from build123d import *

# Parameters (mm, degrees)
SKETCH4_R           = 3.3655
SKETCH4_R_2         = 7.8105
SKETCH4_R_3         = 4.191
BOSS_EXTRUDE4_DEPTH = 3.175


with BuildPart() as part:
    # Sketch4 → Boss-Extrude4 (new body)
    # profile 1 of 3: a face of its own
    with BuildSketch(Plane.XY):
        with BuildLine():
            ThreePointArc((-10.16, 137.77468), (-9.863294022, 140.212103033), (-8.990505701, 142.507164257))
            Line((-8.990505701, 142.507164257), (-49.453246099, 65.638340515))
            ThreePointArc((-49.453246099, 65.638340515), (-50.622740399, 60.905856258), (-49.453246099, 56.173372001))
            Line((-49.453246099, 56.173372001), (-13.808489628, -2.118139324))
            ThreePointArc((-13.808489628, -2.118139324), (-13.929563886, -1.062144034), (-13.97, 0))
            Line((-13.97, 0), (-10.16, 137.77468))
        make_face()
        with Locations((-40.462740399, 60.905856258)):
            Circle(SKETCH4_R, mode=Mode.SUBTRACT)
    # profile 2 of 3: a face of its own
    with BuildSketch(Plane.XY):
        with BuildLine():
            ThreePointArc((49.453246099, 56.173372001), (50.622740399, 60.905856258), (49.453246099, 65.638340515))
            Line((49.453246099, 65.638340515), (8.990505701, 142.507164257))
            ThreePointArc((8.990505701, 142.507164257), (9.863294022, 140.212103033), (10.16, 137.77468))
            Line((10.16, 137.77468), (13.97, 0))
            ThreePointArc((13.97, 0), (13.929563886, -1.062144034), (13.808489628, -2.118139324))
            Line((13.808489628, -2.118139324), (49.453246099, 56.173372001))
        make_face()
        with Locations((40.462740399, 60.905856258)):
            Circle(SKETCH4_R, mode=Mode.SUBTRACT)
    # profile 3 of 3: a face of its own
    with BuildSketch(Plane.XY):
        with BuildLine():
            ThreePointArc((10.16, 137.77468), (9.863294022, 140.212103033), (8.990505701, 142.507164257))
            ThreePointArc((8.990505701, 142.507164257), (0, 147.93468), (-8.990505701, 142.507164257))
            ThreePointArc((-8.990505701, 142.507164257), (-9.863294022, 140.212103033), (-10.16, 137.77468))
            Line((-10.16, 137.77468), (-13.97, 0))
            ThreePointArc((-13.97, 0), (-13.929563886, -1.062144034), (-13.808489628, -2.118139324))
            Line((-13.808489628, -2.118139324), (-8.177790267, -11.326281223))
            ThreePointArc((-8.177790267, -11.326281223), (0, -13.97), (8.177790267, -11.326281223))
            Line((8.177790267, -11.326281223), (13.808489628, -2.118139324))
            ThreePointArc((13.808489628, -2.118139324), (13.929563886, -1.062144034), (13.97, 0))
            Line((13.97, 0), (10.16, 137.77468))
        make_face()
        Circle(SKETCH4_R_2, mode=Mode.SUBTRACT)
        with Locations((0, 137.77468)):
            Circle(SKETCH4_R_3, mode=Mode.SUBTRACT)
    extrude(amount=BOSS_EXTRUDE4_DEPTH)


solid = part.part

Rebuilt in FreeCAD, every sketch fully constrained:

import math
import FreeCAD as App
import Part
import Sketcher

V = App.Vector
Q = App.Units.Quantity

doc = App.newDocument("Part")
params = doc.addObject("Spreadsheet::Sheet", "Params")
for row, (alias, value) in enumerate([
    ("sketch1_radius", "0.4 in"),
    ("sketch1_diameter", "0.33 in"),
    ("sketch1_radius2", "0.55 in"),
    ("sketch1_diameter2", "0.265 in"),
    ("sketch1_diameter3", "0.615 in"),
    ("pad1_length", "0.125 in"),
], start=1):
    params.set(f"A{row}", alias)
    params.set(f"B{row}", "=" + value)
    params.setAlias(f"B{row}", alias)

body = doc.addObject("PartDesign::Body", "Body")

# Sketch on XY plane
sketch1 = body.newObject("Sketcher::SketchObject", "Sketch")
sketch1.AttachmentSupport = (doc.getObject("XY_Plane"), [""])
sketch1.MapMode = "FlatFace"
sketch1.addGeometry([
    Part.LineSegment(V(-9, 142.5, 0), V(-49.5, 65.6, 0)),  # 0
    Part.ArcOfCircle(Part.Circle(V(-40.5, 60.9, 0), V(0, 0, 1), 10.2), math.radians(152), math.radians(208)),  # 1
    Part.LineSegment(V(-49.5, 56.2, 0), V(-13.8, -2.1, 0)),  # 2
    Part.LineSegment(V(-13.8, -2.1, 0), V(-8.2, -11.3, 0)),  # 3
    Part.ArcOfCircle(Part.Circle(V(0, 0, 0), V(0, 0, 1), 14), math.radians(-126), math.radians(-54)),  # 4
    Part.LineSegment(V(8.2, -11.3, 0), V(13.8, -2.1, 0)),  # 5
    Part.LineSegment(V(13.8, -2.1, 0), V(49.5, 56.2, 0)),  # 6
    Part.ArcOfCircle(Part.Circle(V(40.5, 60.9, 0), V(0, 0, 1), 10.2), math.radians(-28), math.radians(28)),  # 7
    Part.LineSegment(V(49.5, 65.6, 0), V(9, 142.5, 0)),  # 8
    Part.ArcOfCircle(Part.Circle(V(0, 137.8, 0), V(0, 0, 1), 10.2), math.radians(28), math.radians(152)),  # 9
    Part.Circle(V(-40.5, 60.9, 0), V(0, 0, 1), 3.4),  # 10
    Part.Circle(V(0, 137.8, 0), V(0, 0, 1), 4.2),  # 11
    Part.Circle(V(0, 0, 0), V(0, 0, 1), 7.8),  # 12
    Part.Circle(V(40.5, 60.9, 0), V(0, 0, 1), 3.4),  # 13
], False)
sketch1.addConstraint([
    Sketcher.Constraint("Tangent", 0, 2, 1, 1),
    Sketcher.Constraint("Coincident", 1, 2, 2, 1),
    Sketcher.Constraint("Coincident", 2, 2, 3, 1),
    Sketcher.Constraint("Coincident", 3, 2, 4, 1),
    Sketcher.Constraint("Coincident", 4, 2, 5, 1),
    Sketcher.Constraint("Coincident", 5, 2, 6, 1),
    Sketcher.Constraint("Coincident", 6, 2, 7, 1),
    Sketcher.Constraint("Tangent", 7, 2, 8, 1),
    Sketcher.Constraint("Tangent", 8, 2, 9, 1),
    Sketcher.Constraint("Tangent", 9, 2, 0, 1),
    Sketcher.Constraint("Coincident", 4, 3, -1, 1),
    Sketcher.Constraint("Coincident", 12, 3, -1, 1),
    Sketcher.Constraint("Coincident", 10, 3, 1, 3),
    Sketcher.Constraint("Coincident", 11, 3, 9, 3),
    Sketcher.Constraint("Coincident", 13, 3, 7, 3),
    Sketcher.Constraint("Equal", 1, 7),
    Sketcher.Constraint("Equal", 7, 9),
    Sketcher.Constraint("Equal", 10, 13),
    Sketcher.Constraint("Symmetric", 1, 3, 7, 3, -2),
    Sketcher.Constraint("Symmetric", 2, 2, 5, 2, -2),
    Sketcher.Constraint("PointOnObject", 9, 3, -2),
    Sketcher.Constraint("Parallel", 2, 3),
    Sketcher.Constraint("Parallel", 5, 6),
    Sketcher.Constraint("Horizontal", 3, 2, 4, 2),
    Sketcher.Constraint("Vertical", 0, 2, 1, 2),
    Sketcher.Constraint("Radius", 1, Q("0.4 in")),
    Sketcher.Constraint("Diameter", 11, Q("0.33 in")),
    Sketcher.Constraint("Radius", 4, Q("0.55 in")),
    Sketcher.Constraint("Diameter", 10, Q("0.265 in")),
    Sketcher.Constraint("Diameter", 12, Q("0.615 in")),
    Sketcher.Constraint("Distance", 0, Q("3.42 in")),
    Sketcher.Constraint("DistanceY", -1, 1, 9, 3, Q("5.4242 in")),
    Sketcher.Constraint("DistanceX", 2, 2, 3, 2, 5.630699),
    Sketcher.Constraint("Distance", 2, 68.326049),
    Sketcher.Constraint("Distance", 3, 10.793269),
])
sketch1.setExpression("Constraints[25]", "Params.sketch1_radius")
sketch1.setExpression("Constraints[26]", "Params.sketch1_diameter")
sketch1.setExpression("Constraints[27]", "Params.sketch1_radius2")
sketch1.setExpression("Constraints[28]", "Params.sketch1_diameter2")
sketch1.setExpression("Constraints[29]", "Params.sketch1_diameter3")
pad1 = body.newObject("PartDesign::Pad", "Pad")
pad1.Profile = sketch1
pad1.setExpression("Length", "Params.pad1_length")

doc.recompute()
